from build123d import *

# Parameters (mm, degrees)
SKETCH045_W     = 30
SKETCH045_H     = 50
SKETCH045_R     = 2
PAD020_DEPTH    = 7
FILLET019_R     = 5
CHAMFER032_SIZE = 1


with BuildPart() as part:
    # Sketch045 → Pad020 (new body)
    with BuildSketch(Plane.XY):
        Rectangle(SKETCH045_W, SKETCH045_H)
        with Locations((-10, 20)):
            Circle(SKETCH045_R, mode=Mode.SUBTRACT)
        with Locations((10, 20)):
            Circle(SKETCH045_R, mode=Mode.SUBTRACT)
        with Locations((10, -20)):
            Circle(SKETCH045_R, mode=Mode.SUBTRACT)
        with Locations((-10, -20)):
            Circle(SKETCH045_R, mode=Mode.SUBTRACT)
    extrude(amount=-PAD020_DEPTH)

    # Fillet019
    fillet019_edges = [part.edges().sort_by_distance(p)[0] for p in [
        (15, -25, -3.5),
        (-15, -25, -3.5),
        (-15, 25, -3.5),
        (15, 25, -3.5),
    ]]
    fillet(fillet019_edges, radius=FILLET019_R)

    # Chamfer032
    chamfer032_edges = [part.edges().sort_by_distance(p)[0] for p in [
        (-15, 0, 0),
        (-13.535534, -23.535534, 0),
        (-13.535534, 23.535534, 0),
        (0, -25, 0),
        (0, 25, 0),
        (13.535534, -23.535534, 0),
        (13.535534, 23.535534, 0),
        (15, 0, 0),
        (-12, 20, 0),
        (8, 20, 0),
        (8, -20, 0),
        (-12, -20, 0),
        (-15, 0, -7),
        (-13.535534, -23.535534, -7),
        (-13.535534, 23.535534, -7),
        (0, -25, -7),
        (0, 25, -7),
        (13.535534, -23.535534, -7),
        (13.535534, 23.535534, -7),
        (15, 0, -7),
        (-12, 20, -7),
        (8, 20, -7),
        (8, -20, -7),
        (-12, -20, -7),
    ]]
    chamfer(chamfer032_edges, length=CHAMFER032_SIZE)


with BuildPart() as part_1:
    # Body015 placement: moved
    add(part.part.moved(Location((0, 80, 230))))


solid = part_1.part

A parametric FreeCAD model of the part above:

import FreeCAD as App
import Part
import Sketcher
from FreeCAD import Vector
Q = App.Units.Quantity


def edges_at(feature, points):
    """Names of the edges that pass closest to the given points."""
    edges = feature.Shape.Edges
    near = lambda p: min(range(len(edges)), key=lambda i: edges[i].distToShape(Part.Vertex(*p))[0])
    return sorted({f"Edge{near(p) + 1}" for p in points})

doc = App.newDocument("Part")
params = doc.addObject("Spreadsheet::Sheet", "Params")
for row, (alias, value) in enumerate([
    ("sketch1_diameter", "4 mm"),
    ("sketch1_width", "30 mm"),
    ("sketch1_height", "50 mm"),
    ("pad1_length", "7 mm"),
    ("fillet_radius", "5 mm"),
    ("chamfer_size", "1 mm"),
], start=1):
    params.set(f"A{row}", alias)
    params.set(f"B{row}", "=" + value)
    params.setAlias(f"B{row}", alias)

body = doc.addObject("PartDesign::Body", "Body")

# Sketch on XY plane
sketch1 = body.newObject("Sketcher::SketchObject", "Sketch")
sketch1.AttachmentSupport = (doc.getObject("XY_Plane"), [""])
sketch1.MapMode = "FlatFace"
sketch1.addGeometry(Part.LineSegment(Vector(-15, 25, 0), Vector(-15, -25, 0)), False)
sketch1.addGeometry(Part.LineSegment(Vector(-15, -25, 0), Vector(15, -25, 0)), False)
sketch1.addGeometry(Part.LineSegment(Vector(15, -25, 0), Vector(15, 25, 0)), False)
sketch1.addGeometry(Part.LineSegment(Vector(15, 25, 0), Vector(-15, 25, 0)), False)
sketch1.addGeometry(Part.Circle(Vector(-10, -20, 0), Vector(0, 0, 1), 2), False)
sketch1.addGeometry(Part.Circle(Vector(10, -20, 0), Vector(0, 0, 1), 2), False)
sketch1.addGeometry(Part.Circle(Vector(-10, 20, 0), Vector(0, 0, 1), 2), False)
sketch1.addGeometry(Part.Circle(Vector(10, 20, 0), Vector(0, 0, 1), 2), False)
sketch1.addConstraint(Sketcher.Constraint("Coincident", 0, 2, 1, 1))
sketch1.addConstraint(Sketcher.Constraint("Coincident", 1, 2, 2, 1))
sketch1.addConstraint(Sketcher.Constraint("Coincident", 2, 2, 3, 1))
sketch1.addConstraint(Sketcher.Constraint("Coincident", 3, 2, 0, 1))
sketch1.addConstraint(Sketcher.Constraint("Vertical", 0))
sketch1.addConstraint(Sketcher.Constraint("Horizontal", 1))
sketch1.addConstraint(Sketcher.Constraint("Vertical", 2))
sketch1.addConstraint(Sketcher.Constraint("Horizontal", 3))
sketch1.addConstraint(Sketcher.Constraint("Equal", 4, 5))
sketch1.addConstraint(Sketcher.Constraint("Equal", 5, 6))
sketch1.addConstraint(Sketcher.Constraint("Equal", 6, 7))
sketch1.addConstraint(Sketcher.Constraint("Symmetric", 5, 3, 6, 3, -1, 1))
sketch1.addConstraint(Sketcher.Constraint("Symmetric", 4, 3, 7, 3, -1, 1))
sketch1.addConstraint(Sketcher.Constraint("Symmetric", 0, 2, 2, 2, -1, 1))
sketch1.addConstraint(Sketcher.Constraint("Symmetric", 4, 3, 5, 3, -2))
sketch1.addConstraint(Sketcher.Constraint("Diameter", 4, Q("4 mm")))
sketch1.addConstraint(Sketcher.Constraint("DistanceX", 1, 1, 1, 2, Q("30 mm")))
sketch1.addConstraint(Sketcher.Constraint("DistanceY", 0, 2, 0, 1, Q("50 mm")))
sketch1.addConstraint(Sketcher.Constraint("DistanceX", 4, 3, -1, 1, Q("10 mm")))
sketch1.addConstraint(Sketcher.Constraint("DistanceY", 4, 3, -1, 1, Q("20 mm")))
sketch1.setExpression("Constraints[15]", "Params.sketch1_diameter")
sketch1.setExpression("Constraints[16]", "Params.sketch1_width")
sketch1.setExpression("Constraints[17]", "Params.sketch1_height")
pad1 = body.newObject("PartDesign::Pad", "Pad")
pad1.Profile = sketch1
pad1.setExpression("Length", "Params.pad1_length")
pad1.Reversed = True
doc.recompute()

fillet = body.newObject("PartDesign::Fillet", "Fillet")
fillet.Base = (pad1, edges_at(pad1, [
    (15, -25, -3.5),
    (-15, -25, -3.5),
    (-15, 25, -3.5),
    (15, 25, -3.5),
]))
fillet.setExpression("Radius", "Params.fillet_radius")
doc.recompute()

chamfer = body.newObject("PartDesign::Chamfer", "Chamfer")
chamfer.Base = (fillet, edges_at(fillet, [
    (-15, 0, 0),
    (-13.536, -23.536, 0),
    (-13.536, 23.536, 0),
    (0, -25, 0),
    (0, 25, 0),
    (13.536, -23.536, 0),
    (13.536, 23.536, 0),
    (15, 0, 0),
    (-12, 20, 0),
    (8, 20, 0),
    (8, -20, 0),
    (-12, -20, 0),
    (-15, 0, -7),
    (-13.536, -23.536, -7),
    (-13.536, 23.536, -7),
    (0, -25, -7),
    (0, 25, -7),
    (13.536, -23.536, -7),
    (13.536, 23.536, -7),
    (15, 0, -7),
    (-12, 20, -7),
    (8, 20, -7),
    (8, -20, -7),
    (-12, -20, -7),
]))
chamfer.setExpression("Size", "Params.chamfer_size")
body2 = doc.addObject("PartDesign::Body", "Body001")
doc.recompute()

body.Placement = App.Placement(Vector(0, 80, 230), App.Rotation(Vector(0, 0, 1), 0))
boolean = body2.newObject("PartDesign::Boolean", "Boolean")
boolean.Type = "Fuse"
boolean.addObjects([body])

doc.recompute()
